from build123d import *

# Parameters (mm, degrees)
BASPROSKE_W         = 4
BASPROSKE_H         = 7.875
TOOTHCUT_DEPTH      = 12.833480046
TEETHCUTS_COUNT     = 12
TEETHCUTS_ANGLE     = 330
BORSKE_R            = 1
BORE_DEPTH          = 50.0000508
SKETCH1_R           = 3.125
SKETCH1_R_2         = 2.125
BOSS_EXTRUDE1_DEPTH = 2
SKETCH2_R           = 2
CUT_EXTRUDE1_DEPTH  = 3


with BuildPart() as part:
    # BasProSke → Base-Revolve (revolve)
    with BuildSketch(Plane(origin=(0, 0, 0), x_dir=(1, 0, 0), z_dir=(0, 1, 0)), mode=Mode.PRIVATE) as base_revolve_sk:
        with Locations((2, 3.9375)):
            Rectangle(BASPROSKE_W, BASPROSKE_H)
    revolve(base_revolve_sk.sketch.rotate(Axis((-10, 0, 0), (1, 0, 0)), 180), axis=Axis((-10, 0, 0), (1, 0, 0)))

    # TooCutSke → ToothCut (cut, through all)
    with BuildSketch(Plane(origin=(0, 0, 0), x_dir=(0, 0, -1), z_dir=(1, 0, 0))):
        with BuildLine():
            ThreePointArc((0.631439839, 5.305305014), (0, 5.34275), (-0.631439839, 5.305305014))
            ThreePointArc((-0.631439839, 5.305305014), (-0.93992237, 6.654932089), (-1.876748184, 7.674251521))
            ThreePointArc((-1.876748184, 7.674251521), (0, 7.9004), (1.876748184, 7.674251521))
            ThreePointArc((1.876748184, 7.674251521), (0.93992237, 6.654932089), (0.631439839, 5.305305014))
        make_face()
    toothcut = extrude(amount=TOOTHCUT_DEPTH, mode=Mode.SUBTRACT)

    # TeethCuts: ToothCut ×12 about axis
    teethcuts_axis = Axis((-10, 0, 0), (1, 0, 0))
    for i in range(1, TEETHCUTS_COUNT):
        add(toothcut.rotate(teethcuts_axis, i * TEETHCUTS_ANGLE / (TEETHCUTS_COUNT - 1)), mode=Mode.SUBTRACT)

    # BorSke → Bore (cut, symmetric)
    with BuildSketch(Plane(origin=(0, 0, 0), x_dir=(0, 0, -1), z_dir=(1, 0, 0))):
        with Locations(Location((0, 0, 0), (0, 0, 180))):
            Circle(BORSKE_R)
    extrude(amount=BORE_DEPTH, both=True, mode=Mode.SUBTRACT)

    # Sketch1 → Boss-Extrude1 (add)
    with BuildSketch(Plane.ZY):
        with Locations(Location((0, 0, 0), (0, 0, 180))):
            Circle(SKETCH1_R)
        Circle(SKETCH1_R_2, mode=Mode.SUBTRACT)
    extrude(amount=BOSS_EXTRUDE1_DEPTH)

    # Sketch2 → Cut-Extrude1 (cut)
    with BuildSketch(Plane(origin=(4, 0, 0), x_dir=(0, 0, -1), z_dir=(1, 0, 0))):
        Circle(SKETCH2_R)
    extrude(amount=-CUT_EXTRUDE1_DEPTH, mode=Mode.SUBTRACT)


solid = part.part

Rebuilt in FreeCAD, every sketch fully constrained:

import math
import FreeCAD as App
import Part
import Sketcher
from FreeCAD import Vector

doc = App.newDocument("Part")
body = doc.addObject("PartDesign::Body", "Body")

sketch1 = body.newObject("Sketcher::SketchObject", "Sketch")
sketch1.AttachmentSupport = (doc.getObject("XZ_Plane"), [""])
sketch1.MapMode = "FlatFace"
sketch1.addGeometry([
    Part.LineSegment(Vector(0, -7.9, 0), Vector(0, 0, 0)),
    Part.LineSegment(Vector(0, 0, 0), Vector(4, 0, 0)),
    Part.LineSegment(Vector(4, 0, 0), Vector(4, -7.9, 0)),
    Part.LineSegment(Vector(4, -7.9, 0), Vector(0, -7.9, 0)),
], False)
sketch1.addConstraint([
    Sketcher.Constraint("Coincident", 0, 2, 1, 1),
    Sketcher.Constraint("Coincident", 1, 2, 2, 1),
    Sketcher.Constraint("Coincident", 2, 2, 3, 1),
    Sketcher.Constraint("Coincident", 3, 2, 0, 1),
    Sketcher.Constraint("Vertical", 0),
    Sketcher.Constraint("Horizontal", 1),
    Sketcher.Constraint("Vertical", 2),
    Sketcher.Constraint("Horizontal", 3),
    Sketcher.Constraint("Coincident", 0, 2, -1, 1),
    Sketcher.Constraint("DistanceX", 1, 1, 1, 2, 4.0),
    Sketcher.Constraint("DistanceY", 0, 1, 0, 2, 7.875),
])
revolution = body.newObject("PartDesign::Revolution", "Revolution")
revolution.Profile = sketch1
revolution.ReferenceAxis = (sketch1, ["H_Axis"])
revolution.Angle = 360

sketch2 = body.newObject("Sketcher::SketchObject", "Sketch001")
sketch2.AttachmentSupport = (doc.getObject("YZ_Plane"), [""])
sketch2.MapMode = "FlatFace"
sketch2.addGeometry([
    Part.ArcOfCircle(Part.Circle(Vector(0, 0, 0), Vector(0, 0, 1), 5.3), math.radians(-6.79), math.radians(6.79)),
    Part.ArcOfCircle(Part.Circle(Vector(5.4, -3.3, 0), Vector(0, 0, 1), 2.7), math.radians(33), math.radians(92)),
    Part.ArcOfCircle(Part.Circle(Vector(0, 0, 0), Vector(0, 0, 1), 7.9), math.radians(-14), math.radians(14)),
    Part.ArcOfCircle(Part.Circle(Vector(5.4, 3.3, 0), Vector(0, 0, 1), 2.7), math.radians(-92), math.radians(-33)),
], False)
sketch2.addConstraint([
    Sketcher.Constraint("Coincident", 0, 1, 1, 2),
    Sketcher.Constraint("Coincident", 1, 1, 2, 1),
    Sketcher.Constraint("Coincident", 2, 2, 3, 2),
    Sketcher.Constraint("Coincident", 3, 1, 0, 2),
    Sketcher.Constraint("Coincident", 0, 3, -1, 1),
    Sketcher.Constraint("Coincident", 2, 3, -1, 1),
    Sketcher.Constraint("Equal", 1, 3),
    Sketcher.Constraint("Symmetric", 1, 3, 3, 3, -1),
    Sketcher.Constraint("Radius", 1, 2.7),
    Sketcher.Constraint("Radius", 2, 7.9004),
    Sketcher.Constraint("Radius", 0, 5.34275),
    Sketcher.Constraint("DistanceX", 0, 1, 1, 3, 0.093301),
    Sketcher.Constraint("DistanceY", 0, 1, -1, 1, 0.63144),
])
pocket1 = body.newObject("PartDesign::Pocket", "Pocket")
pocket1.Profile = sketch2
pocket1.Type = "ThroughAll"
pocket1.Reversed = True
doc.recompute()

polarpattern = body.newObject("PartDesign::PolarPattern", "PolarPattern")
polarpattern.Originals = [pocket1]
polarpattern.Axis = (doc.getObject("X_Axis"), [""])
polarpattern.Angle = 360
polarpattern.Occurrences = 12
body.Tip = polarpattern

sketch3 = body.newObject("Sketcher::SketchObject", "Sketch002")
sketch3.AttachmentSupport = (doc.getObject("YZ_Plane"), [""])
sketch3.MapMode = "FlatFace"
sketch3.addGeometry(Part.Circle(Vector(0, 0, 0), Vector(0, 0, 1), 1), False)
sketch3.addConstraint([
    Sketcher.Constraint("Coincident", 0, 3, -1, 1),
    Sketcher.Constraint("Diameter", 0, 2.0),
])
pocket2 = body.newObject("PartDesign::Pocket", "Pocket001")
pocket2.Profile = sketch3
pocket2.Length = 100.000102
pocket2.Midplane = True

sketch4 = body.newObject("Sketcher::SketchObject", "Sketch003")
sketch4.AttachmentSupport = (doc.getObject("YZ_Plane"), [""])
sketch4.MapMode = "FlatFace"
sketch4.addGeometry([
    Part.Circle(Vector(0, 0, 0), Vector(0, 0, 1), 3.1),
    Part.Circle(Vector(0, 0, 0), Vector(0, 0, 1), 2.1),
], False)
sketch4.addConstraint([
    Sketcher.Constraint("Coincident", 0, 3, -1, 1),
    Sketcher.Constraint("Coincident", 1, 3, -1, 1),
    Sketcher.Constraint("Diameter", 0, 6.25),
    Sketcher.Constraint("Diameter", 1, 4.25),
])
pad1 = body.newObject("PartDesign::Pad", "Pad")
pad1.Profile = sketch4
pad1.Length = 2
pad1.Reversed = True

sketch5 = body.newObject("Sketcher::SketchObject", "Sketch004")
sketch5.AttachmentSupport = (doc.getObject("YZ_Plane"), [""])
sketch5.MapMode = "FlatFace"
sketch5.AttachmentOffset = App.Placement(Vector(0, 0, 4), App.Rotation())
sketch5.addGeometry(Part.Circle(Vector(0, 0, 0), Vector(0, 0, 1), 2), False)
sketch5.addConstraint([
    Sketcher.Constraint("Coincident", 0, 3, -1, 1),
    Sketcher.Constraint("Diameter", 0, 4.0),
])
pocket3 = body.newObject("PartDesign::Pocket", "Pocket002")
pocket3.Profile = sketch5
pocket3.Length = 3

doc.recompute()
